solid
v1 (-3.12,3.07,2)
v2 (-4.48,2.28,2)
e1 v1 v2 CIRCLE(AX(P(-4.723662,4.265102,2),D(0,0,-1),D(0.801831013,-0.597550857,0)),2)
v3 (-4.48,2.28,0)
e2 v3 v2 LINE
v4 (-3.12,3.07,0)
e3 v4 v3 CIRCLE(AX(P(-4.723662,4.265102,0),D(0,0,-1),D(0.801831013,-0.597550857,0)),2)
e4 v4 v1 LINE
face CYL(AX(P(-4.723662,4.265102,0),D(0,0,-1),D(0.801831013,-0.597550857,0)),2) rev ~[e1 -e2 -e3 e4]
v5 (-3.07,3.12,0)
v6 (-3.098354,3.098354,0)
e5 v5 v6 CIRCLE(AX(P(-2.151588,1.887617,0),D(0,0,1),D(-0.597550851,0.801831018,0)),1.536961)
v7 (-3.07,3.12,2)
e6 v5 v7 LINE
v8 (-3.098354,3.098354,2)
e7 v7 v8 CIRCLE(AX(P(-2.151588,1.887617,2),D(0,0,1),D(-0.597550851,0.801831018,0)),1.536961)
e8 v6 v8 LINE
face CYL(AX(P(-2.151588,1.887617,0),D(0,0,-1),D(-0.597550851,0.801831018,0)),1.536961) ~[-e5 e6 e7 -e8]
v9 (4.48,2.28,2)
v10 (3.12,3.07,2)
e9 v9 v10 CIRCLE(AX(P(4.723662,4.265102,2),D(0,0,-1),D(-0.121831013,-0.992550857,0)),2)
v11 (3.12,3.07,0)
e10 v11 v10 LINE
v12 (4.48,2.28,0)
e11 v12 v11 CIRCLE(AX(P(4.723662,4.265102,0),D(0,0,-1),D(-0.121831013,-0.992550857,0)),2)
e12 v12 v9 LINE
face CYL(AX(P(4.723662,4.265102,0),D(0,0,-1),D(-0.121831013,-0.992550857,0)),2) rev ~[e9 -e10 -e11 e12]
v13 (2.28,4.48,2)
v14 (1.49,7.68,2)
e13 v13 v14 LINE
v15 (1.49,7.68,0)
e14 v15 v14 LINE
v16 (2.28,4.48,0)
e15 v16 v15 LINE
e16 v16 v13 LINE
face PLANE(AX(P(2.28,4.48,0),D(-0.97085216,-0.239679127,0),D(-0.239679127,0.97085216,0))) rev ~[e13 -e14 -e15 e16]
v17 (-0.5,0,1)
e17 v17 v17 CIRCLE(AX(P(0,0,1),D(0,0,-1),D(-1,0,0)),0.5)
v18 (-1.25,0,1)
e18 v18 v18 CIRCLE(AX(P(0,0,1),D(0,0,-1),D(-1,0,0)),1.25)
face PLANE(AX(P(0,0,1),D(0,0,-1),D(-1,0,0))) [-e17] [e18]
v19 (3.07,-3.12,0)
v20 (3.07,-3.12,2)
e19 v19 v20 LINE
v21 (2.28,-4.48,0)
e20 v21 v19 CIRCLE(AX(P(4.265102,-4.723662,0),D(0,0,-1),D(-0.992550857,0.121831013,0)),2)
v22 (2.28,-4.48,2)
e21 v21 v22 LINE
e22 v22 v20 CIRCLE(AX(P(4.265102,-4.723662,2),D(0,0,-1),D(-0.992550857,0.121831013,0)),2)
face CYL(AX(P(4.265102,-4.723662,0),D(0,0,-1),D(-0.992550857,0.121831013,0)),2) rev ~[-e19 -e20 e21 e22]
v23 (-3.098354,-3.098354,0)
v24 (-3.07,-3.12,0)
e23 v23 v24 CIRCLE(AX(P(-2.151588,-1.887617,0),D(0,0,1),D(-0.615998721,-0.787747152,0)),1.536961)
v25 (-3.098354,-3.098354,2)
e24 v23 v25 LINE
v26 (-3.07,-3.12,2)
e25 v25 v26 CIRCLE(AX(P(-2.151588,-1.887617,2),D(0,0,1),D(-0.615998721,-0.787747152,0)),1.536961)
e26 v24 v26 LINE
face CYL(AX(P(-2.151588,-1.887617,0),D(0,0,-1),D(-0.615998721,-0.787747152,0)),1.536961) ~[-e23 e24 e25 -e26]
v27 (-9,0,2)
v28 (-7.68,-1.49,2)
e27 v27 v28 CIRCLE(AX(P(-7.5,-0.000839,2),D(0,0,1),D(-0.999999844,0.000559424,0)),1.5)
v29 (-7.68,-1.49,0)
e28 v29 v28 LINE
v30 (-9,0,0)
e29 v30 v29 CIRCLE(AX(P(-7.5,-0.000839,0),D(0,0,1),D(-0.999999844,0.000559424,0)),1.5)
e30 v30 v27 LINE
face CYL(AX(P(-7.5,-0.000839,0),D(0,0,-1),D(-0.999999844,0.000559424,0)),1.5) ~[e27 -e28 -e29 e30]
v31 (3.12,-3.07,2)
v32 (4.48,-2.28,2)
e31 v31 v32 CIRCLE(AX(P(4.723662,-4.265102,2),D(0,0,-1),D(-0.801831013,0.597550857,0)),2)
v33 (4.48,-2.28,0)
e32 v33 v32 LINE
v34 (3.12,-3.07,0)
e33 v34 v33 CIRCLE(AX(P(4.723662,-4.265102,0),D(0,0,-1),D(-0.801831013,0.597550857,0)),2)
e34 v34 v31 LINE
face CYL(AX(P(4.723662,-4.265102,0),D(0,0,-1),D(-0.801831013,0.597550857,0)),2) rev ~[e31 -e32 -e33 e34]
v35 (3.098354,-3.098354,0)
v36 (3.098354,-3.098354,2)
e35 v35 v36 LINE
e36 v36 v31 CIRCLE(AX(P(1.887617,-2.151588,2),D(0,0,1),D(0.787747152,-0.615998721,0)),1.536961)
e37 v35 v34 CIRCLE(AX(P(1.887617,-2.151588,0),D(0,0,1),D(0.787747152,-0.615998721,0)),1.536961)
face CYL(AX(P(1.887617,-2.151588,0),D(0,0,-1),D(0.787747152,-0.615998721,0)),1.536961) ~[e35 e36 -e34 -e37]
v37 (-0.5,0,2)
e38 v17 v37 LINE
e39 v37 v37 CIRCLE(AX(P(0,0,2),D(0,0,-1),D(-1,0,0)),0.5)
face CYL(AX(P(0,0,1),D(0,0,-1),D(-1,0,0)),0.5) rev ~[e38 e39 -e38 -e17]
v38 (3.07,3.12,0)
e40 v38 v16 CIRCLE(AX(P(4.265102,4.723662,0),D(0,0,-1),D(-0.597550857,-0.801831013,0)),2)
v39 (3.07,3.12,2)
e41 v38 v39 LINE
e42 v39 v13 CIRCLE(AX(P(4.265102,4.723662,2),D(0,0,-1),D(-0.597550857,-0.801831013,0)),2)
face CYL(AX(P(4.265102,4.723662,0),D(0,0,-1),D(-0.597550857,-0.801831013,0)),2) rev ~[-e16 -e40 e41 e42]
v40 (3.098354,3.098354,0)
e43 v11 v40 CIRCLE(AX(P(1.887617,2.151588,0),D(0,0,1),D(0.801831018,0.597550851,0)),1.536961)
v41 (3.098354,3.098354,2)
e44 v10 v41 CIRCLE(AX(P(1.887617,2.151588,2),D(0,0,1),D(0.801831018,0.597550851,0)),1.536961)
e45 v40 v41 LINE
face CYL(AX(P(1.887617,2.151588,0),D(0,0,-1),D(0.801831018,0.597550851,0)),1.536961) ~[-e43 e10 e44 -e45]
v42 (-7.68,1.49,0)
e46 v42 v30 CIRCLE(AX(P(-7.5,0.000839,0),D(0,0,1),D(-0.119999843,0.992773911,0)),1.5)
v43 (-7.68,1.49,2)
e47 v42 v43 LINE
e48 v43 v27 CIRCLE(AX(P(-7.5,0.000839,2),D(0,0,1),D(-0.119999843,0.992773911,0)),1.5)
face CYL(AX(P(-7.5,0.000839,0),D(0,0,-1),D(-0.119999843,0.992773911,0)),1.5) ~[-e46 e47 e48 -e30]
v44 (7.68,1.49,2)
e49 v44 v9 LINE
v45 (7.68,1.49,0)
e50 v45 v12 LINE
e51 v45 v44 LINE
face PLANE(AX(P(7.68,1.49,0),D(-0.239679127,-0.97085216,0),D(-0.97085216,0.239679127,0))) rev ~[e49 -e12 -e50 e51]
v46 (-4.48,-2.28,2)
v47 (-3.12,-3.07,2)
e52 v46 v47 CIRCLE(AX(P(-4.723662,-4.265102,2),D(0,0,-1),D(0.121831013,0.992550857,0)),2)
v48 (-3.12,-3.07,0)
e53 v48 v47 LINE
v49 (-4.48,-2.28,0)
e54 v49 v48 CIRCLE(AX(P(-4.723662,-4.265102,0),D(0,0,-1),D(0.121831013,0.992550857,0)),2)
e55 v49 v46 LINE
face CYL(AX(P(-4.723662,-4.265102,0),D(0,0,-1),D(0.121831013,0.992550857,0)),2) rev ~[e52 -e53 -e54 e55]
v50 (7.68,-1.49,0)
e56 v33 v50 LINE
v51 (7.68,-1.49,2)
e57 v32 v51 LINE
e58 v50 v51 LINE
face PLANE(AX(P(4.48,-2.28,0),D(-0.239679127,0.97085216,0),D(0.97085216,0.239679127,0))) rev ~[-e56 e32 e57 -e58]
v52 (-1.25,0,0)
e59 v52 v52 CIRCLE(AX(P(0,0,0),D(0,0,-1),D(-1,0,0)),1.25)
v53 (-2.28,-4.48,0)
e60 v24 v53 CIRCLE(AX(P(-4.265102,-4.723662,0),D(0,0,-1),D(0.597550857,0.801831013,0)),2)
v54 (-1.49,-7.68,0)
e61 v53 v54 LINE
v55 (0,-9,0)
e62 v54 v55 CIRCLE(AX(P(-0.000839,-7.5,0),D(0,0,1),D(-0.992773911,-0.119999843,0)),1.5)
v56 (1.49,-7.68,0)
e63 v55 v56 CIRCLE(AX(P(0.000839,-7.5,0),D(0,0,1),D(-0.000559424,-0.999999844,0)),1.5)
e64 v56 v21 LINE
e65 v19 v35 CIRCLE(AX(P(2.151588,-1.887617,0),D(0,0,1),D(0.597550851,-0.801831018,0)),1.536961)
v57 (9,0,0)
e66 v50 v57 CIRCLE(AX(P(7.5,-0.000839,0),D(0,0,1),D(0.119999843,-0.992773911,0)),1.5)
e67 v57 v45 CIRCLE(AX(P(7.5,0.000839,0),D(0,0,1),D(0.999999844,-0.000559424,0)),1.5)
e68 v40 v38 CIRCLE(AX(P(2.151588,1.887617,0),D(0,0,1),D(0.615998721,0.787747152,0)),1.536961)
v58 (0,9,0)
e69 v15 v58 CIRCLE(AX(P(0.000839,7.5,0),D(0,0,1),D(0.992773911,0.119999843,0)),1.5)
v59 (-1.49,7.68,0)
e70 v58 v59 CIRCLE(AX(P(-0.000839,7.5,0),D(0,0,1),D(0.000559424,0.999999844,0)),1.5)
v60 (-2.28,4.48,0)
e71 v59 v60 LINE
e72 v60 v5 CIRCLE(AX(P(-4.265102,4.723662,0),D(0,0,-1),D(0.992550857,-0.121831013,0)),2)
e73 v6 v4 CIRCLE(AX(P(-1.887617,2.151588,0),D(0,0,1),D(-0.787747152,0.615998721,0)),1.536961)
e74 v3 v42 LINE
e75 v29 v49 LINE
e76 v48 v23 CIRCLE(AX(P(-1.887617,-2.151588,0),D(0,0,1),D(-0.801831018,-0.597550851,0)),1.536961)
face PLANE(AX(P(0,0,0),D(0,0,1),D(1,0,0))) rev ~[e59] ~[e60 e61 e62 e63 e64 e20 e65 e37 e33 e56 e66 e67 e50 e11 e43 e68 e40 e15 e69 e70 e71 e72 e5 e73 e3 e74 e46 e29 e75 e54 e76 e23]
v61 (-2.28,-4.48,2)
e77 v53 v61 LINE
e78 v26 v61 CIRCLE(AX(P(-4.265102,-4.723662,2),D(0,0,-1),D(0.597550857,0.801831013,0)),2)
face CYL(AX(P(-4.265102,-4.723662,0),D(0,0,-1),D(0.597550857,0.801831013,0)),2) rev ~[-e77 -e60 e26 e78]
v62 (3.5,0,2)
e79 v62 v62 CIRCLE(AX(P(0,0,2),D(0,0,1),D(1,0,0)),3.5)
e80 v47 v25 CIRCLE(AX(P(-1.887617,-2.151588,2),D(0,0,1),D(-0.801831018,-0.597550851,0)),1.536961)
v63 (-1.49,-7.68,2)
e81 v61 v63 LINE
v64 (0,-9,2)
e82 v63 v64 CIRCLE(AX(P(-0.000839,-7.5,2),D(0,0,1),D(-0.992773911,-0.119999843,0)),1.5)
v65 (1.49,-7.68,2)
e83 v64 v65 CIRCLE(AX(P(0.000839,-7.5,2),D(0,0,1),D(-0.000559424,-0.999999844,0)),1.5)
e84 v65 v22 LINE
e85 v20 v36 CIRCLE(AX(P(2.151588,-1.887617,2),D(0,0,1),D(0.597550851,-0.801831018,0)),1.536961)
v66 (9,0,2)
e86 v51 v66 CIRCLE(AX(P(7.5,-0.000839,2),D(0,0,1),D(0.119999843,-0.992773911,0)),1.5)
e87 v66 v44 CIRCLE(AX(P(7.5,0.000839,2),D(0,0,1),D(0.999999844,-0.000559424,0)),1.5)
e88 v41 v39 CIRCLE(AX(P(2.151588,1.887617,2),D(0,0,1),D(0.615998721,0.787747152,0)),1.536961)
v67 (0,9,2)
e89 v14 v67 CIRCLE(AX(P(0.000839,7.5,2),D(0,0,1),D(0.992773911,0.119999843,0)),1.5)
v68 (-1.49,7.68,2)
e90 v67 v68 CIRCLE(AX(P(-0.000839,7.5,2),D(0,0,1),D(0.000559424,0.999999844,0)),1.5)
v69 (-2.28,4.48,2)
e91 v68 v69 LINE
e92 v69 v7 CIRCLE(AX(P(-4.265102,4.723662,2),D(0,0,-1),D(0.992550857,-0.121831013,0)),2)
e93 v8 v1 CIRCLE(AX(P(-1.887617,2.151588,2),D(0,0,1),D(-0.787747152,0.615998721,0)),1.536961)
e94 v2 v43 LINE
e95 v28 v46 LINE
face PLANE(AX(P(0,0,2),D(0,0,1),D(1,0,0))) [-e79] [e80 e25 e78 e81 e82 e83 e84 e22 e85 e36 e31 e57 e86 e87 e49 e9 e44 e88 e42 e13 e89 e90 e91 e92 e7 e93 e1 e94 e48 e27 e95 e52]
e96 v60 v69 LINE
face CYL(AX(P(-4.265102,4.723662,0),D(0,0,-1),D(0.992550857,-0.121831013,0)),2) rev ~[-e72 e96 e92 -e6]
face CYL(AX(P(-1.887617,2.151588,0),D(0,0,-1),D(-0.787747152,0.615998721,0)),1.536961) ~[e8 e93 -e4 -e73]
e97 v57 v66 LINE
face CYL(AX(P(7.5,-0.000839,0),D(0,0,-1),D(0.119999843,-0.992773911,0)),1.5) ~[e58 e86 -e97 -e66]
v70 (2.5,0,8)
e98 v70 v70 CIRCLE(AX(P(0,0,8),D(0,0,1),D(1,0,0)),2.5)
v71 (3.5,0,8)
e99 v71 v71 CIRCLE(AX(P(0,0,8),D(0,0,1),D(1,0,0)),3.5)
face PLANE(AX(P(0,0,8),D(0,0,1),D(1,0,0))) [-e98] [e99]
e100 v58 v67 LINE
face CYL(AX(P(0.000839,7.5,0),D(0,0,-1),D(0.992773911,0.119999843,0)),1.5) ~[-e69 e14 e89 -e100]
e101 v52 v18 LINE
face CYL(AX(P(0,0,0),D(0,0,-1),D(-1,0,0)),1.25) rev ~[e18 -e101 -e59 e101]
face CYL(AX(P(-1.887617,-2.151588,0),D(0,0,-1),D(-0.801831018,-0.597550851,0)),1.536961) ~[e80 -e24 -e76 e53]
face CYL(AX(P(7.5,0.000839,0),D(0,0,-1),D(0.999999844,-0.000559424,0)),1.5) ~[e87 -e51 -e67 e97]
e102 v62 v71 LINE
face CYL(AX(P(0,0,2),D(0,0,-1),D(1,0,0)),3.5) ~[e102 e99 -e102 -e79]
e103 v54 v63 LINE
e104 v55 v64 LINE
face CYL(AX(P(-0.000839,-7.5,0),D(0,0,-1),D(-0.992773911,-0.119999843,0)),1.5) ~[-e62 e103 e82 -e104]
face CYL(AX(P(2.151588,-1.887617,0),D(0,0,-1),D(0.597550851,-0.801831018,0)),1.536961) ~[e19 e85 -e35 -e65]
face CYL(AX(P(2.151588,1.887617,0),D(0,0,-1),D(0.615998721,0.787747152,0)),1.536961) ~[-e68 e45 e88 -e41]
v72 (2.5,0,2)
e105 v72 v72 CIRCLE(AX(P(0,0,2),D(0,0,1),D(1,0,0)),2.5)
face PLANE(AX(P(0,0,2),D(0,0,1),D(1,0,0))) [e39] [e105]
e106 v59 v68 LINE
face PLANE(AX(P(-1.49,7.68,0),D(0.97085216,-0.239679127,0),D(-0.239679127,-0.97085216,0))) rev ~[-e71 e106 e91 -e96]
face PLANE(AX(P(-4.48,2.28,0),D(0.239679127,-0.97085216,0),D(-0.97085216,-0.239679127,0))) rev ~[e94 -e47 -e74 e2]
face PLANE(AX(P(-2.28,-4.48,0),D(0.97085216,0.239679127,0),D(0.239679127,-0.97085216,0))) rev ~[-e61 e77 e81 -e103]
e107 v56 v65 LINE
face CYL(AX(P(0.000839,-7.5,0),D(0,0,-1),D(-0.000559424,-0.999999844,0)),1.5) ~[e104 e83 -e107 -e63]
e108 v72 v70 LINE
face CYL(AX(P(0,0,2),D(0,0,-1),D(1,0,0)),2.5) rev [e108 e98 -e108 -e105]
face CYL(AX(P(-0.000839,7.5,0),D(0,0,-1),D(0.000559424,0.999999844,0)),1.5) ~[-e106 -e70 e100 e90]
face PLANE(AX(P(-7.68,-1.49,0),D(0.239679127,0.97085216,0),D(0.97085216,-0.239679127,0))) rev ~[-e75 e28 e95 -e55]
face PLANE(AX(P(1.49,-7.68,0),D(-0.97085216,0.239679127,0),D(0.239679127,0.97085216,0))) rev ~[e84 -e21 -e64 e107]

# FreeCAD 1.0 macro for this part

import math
import FreeCAD as App
import Part
import Sketcher

V = App.Vector
Q = App.Units.Quantity

doc = App.newDocument("Part")
body = doc.addObject("PartDesign::Body", "Body")

sketch1 = body.newObject("Sketcher::SketchObject", "Sketch")
sketch1.AttachmentSupport = (doc.getObject("XY_Plane"), [""])
sketch1.MapMode = "FlatFace"
sketch1.addGeometry([
    Part.LineSegment(V(1.49, -7.68, 0), V(2.28, -4.48, 0)),
    Part.ArcOfCircle(Part.Circle(V(4.265, -4.724, 0), V(0, 0, 1), 2), math.radians(127), math.radians(173)),
    Part.ArcOfCircle(Part.Circle(V(2.152, -1.888, 0), V(0, 0, 1), 1.537), math.radians(-53.31), math.radians(-51.98)),
    Part.ArcOfCircle(Part.Circle(V(1.888, -2.152, 0), V(0, 0, 1), 1.537), math.radians(-38.02), math.radians(-36.69)),
    Part.ArcOfCircle(Part.Circle(V(4.724, -4.265, 0), V(0, 0, 1), 2), math.radians(97), math.radians(143)),
    Part.LineSegment(V(4.48, -2.28, 0), V(7.68, -1.49, 0)),
    Part.ArcOfCircle(Part.Circle(V(7.5, -0.001, 0), V(0, 0, 1), 1.5), math.radians(-83), math.radians(0)),
    Part.ArcOfCircle(Part.Circle(V(7.5, 0.001, 0), V(0, 0, 1), 1.5), math.radians(0), math.radians(83)),
    Part.LineSegment(V(7.68, 1.49, 0), V(4.48, 2.28, 0)),
    Part.ArcOfCircle(Part.Circle(V(4.724, 4.265, 0), V(0, 0, 1), 2), math.radians(-143), math.radians(-97)),
    Part.ArcOfCircle(Part.Circle(V(1.888, 2.152, 0), V(0, 0, 1), 1.537), math.radians(36.69), math.radians(38.02)),
    Part.ArcOfCircle(Part.Circle(V(2.152, 1.888, 0), V(0, 0, 1), 1.537), math.radians(51.98), math.radians(53.31)),
    Part.ArcOfCircle(Part.Circle(V(4.265, 4.724, 0), V(0, 0, 1), 2), math.radians(-173), math.radians(-127)),
    Part.LineSegment(V(2.28, 4.48, 0), V(1.49, 7.68, 0)),
    Part.ArcOfCircle(Part.Circle(V(0.001, 7.5, 0), V(0, 0, 1), 1.5), math.radians(7), math.radians(90)),
    Part.ArcOfCircle(Part.Circle(V(-0.001, 7.5, 0), V(0, 0, 1), 1.5), math.radians(90), math.radians(173)),
    Part.LineSegment(V(-1.49, 7.68, 0), V(-2.28, 4.48, 0)),
    Part.ArcOfCircle(Part.Circle(V(-4.265, 4.724, 0), V(0, 0, 1), 2), math.radians(-53), math.radians(-7)),
    Part.ArcOfCircle(Part.Circle(V(-2.152, 1.888, 0), V(0, 0, 1), 1.537), math.radians(126.69), math.radians(128.02)),
    Part.ArcOfCircle(Part.Circle(V(-1.888, 2.152, 0), V(0, 0, 1), 1.537), math.radians(141.98), math.radians(143.31)),
    Part.ArcOfCircle(Part.Circle(V(-4.724, 4.265, 0), V(0, 0, 1), 2), math.radians(-83), math.radians(-37)),
    Part.LineSegment(V(-4.48, 2.28, 0), V(-7.68, 1.49, 0)),
    Part.ArcOfCircle(Part.Circle(V(-7.5, 0.001, 0), V(0, 0, 1), 1.5), math.radians(97), math.radians(180)),
    Part.ArcOfCircle(Part.Circle(V(-7.5, -0.001, 0), V(0, 0, 1), 1.5), math.radians(180), math.radians(263)),
    Part.LineSegment(V(-7.68, -1.49, 0), V(-4.48, -2.28, 0)),
    Part.ArcOfCircle(Part.Circle(V(-4.724, -4.265, 0), V(0, 0, 1), 2), math.radians(37), math.radians(83)),
    Part.ArcOfCircle(Part.Circle(V(-1.888, -2.152, 0), V(0, 0, 1), 1.537), math.radians(-143.31), math.radians(-141.98)),
    Part.ArcOfCircle(Part.Circle(V(-2.152, -1.888, 0), V(0, 0, 1), 1.537), math.radians(-128.02), math.radians(-126.69)),
    Part.ArcOfCircle(Part.Circle(V(-4.265, -4.724, 0), V(0, 0, 1), 2), math.radians(7), math.radians(53)),
    Part.LineSegment(V(-2.28, -4.48, 0), V(-1.49, -7.68, 0)),
    Part.ArcOfCircle(Part.Circle(V(-0.001, -7.5, 0), V(0, 0, 1), 1.5), math.radians(-173), math.radians(-90)),
    Part.ArcOfCircle(Part.Circle(V(0.001, -7.5, 0), V(0, 0, 1), 1.5), math.radians(-90), math.radians(-7)),
], False)
sketch1.addConstraint([
    Sketcher.Constraint("Coincident", 0, 2, 1, 2),
    Sketcher.Constraint("Tangent", 1, 1, 2, 1),
    Sketcher.Constraint("Coincident", 2, 2, 3, 1),
    Sketcher.Constraint("Tangent", 3, 2, 4, 2),
    Sketcher.Constraint("Coincident", 4, 1, 5, 1),
    Sketcher.Constraint("Coincident", 5, 2, 6, 1),
    Sketcher.Constraint("Coincident", 6, 2, 7, 1),
    Sketcher.Constraint("Coincident", 7, 2, 8, 1),
    Sketcher.Constraint("Coincident", 8, 2, 9, 2),
    Sketcher.Constraint("Tangent", 9, 1, 10, 1),
    Sketcher.Constraint("Coincident", 10, 2, 11, 1),
    Sketcher.Constraint("Tangent", 11, 2, 12, 2),
    Sketcher.Constraint("Coincident", 12, 1, 13, 1),
    Sketcher.Constraint("Coincident", 13, 2, 14, 1),
    Sketcher.Constraint("Coincident", 14, 2, 15, 1),
    Sketcher.Constraint("Coincident", 15, 2, 16, 1),
    Sketcher.Constraint("Coincident", 16, 2, 17, 2),
    Sketcher.Constraint("Tangent", 17, 1, 18, 1),
    Sketcher.Constraint("Coincident", 18, 2, 19, 1),
    Sketcher.Constraint("Tangent", 19, 2, 20, 2),
    Sketcher.Constraint("Coincident", 20, 1, 21, 1),
    Sketcher.Constraint("Coincident", 21, 2, 22, 1),
    Sketcher.Constraint("Coincident", 22, 2, 23, 1),
    Sketcher.Constraint("Coincident", 23, 2, 24, 1),
    Sketcher.Constraint("Coincident", 24, 2, 25, 2),
    Sketcher.Constraint("Tangent", 25, 1, 26, 1),
    Sketcher.Constraint("Coincident", 26, 2, 27, 1),
    Sketcher.Constraint("Tangent", 27, 2, 28, 2),
    Sketcher.Constraint("Coincident", 28, 1, 29, 1),
    Sketcher.Constraint("Coincident", 29, 2, 30, 1),
    Sketcher.Constraint("Coincident", 30, 2, 31, 1),
    Sketcher.Constraint("Coincident", 31, 2, 0, 1),
    Sketcher.Constraint("Equal", 2, 3),
    Sketcher.Constraint("Equal", 1, 4),
    Sketcher.Constraint("Equal", 6, 7),
    Sketcher.Constraint("Equal", 4, 9),
    Sketcher.Constraint("Equal", 3, 10),
    Sketcher.Constraint("Equal", 10, 11),
    Sketcher.Constraint("Equal", 9, 12),
    Sketcher.Constraint("Equal", 7, 14),
    Sketcher.Constraint("Equal", 14, 15),
    Sketcher.Constraint("Equal", 12, 17),
    Sketcher.Constraint("Equal", 11, 18),
    Sketcher.Constraint("Equal", 18, 19),
    Sketcher.Constraint("Equal", 17, 20),
    Sketcher.Constraint("Equal", 15, 22),
    Sketcher.Constraint("Equal", 22, 23),
    Sketcher.Constraint("Equal", 20, 25),
    Sketcher.Constraint("Equal", 19, 26),
    Sketcher.Constraint("Equal", 26, 27),
    Sketcher.Constraint("Equal", 25, 28),
    Sketcher.Constraint("Equal", 23, 30),
    Sketcher.Constraint("Equal", 30, 31),
    Sketcher.Constraint("Symmetric", 1, 3, 17, 3, -1, 1),
    Sketcher.Constraint("Symmetric", 3, 3, 19, 3, -1, 1),
    Sketcher.Constraint("Symmetric", 6, 3, 22, 3, -1, 1),
    Sketcher.Constraint("Symmetric", 9, 3, 25, 3, -1, 1),
    Sketcher.Constraint("Symmetric", 11, 3, 27, 3, -1, 1),
    Sketcher.Constraint("Symmetric", 14, 3, 30, 3, -1, 1),
    Sketcher.Constraint("Symmetric", 4, 1, 20, 1, -1, 1),
    Sketcher.Constraint("Symmetric", 7, 2, 23, 2, -1, 1),
    Sketcher.Constraint("Symmetric", 12, 1, 28, 1, -1, 1),
    Sketcher.Constraint("Symmetric", 15, 2, 31, 2, -1, 1),
    Sketcher.Constraint("Symmetric", 12, 3, 17, 3, -2),
    Sketcher.Constraint("Symmetric", 10, 3, 19, 3, -2),
    Sketcher.Constraint("Symmetric", 13, 2, 15, 2, -2),
    Sketcher.Constraint("Symmetric", 8, 2, 20, 1, -2),
    Sketcher.Constraint("Symmetric", 7, 2, 21, 2, -2),
    Sketcher.Constraint("Symmetric", 2, 2, 26, 2, -2),
    Sketcher.Constraint("PointOnObject", 6, 2, -1),
    Sketcher.Constraint("PointOnObject", 14, 2, -2),
    Sketcher.Constraint("PointOnObject", 22, 2, -1),
    Sketcher.Constraint("PointOnObject", 30, 2, -2),
    Sketcher.Constraint("Perpendicular", 0, 8),
    Sketcher.Constraint("Perpendicular", 5, 13),
    Sketcher.Constraint("Perpendicular", 8, 16),
    Sketcher.Constraint("Perpendicular", 13, 21),
    Sketcher.Constraint("Perpendicular", 16, 24),
    Sketcher.Constraint("Perpendicular", 21, 29),
    Sketcher.Constraint("Horizontal", 11, 3, 18, 3),
    Sketcher.Constraint("Equal", 0, 5),
    Sketcher.Constraint("Radius", 1, Q("2 mm")),
    Sketcher.Constraint("Radius", 6, Q("1.5 mm")),
    Sketcher.Constraint("DistanceX", -1, 1, 6, 2, Q("9 mm")),
    Sketcher.Constraint("DistanceY", -1, 1, 14, 2, Q("9 mm")),
    Sketcher.Constraint("DistanceX", 4, 1, 5, 2, Q("3.2 mm")),
    Sketcher.Constraint("DistanceX", -1, 1, 0, 2, Q("2.28 mm")),
    Sketcher.Constraint("DistanceY", 0, 2, -1, 1, Q("4.48 mm")),
    Sketcher.Constraint("DistanceX", -1, 1, 1, 1, Q("3.07 mm")),
    Sketcher.Constraint("DistanceY", 1, 1, -1, 1, Q("3.12 mm")),
    Sketcher.Constraint("DistanceX", -1, 1, 3, 2, Q("3.12 mm")),
    Sketcher.Constraint("DistanceY", 3, 2, -1, 1, Q("3.07 mm")),
    Sketcher.Constraint("DistanceX", -1, 1, 4, 1, Q("4.48 mm")),
    Sketcher.Constraint("DistanceY", 4, 1, -1, 1, Q("2.28 mm")),
    Sketcher.Constraint("DistanceY", 5, 2, -1, 1, Q("1.49 mm")),
    Sketcher.Constraint("Radius", 2, Q("1.536961 mm")),
])
pad1 = body.newObject("PartDesign::Pad", "Pad")
pad1.Profile = sketch1
pad1.Length = 2

sketch2 = body.newObject("Sketcher::SketchObject", "Sketch001")
sketch2.AttachmentSupport = (doc.getObject("XY_Plane"), [""])
sketch2.MapMode = "FlatFace"
sketch2.AttachmentOffset = App.Placement(V(0, 0, 2), App.Rotation())
sketch2.addGeometry([
    Part.Circle(V(0, 0, 0), V(0, 0, 1), 3.5),
    Part.Circle(V(0, 0, 0), V(0, 0, 1), 2.5),
], False)
sketch2.addConstraint([
    Sketcher.Constraint("Coincident", 0, 3, -1, 1),
    Sketcher.Constraint("Coincident", 1, 3, -1, 1),
    Sketcher.Constraint("Diameter", 0, Q("7 mm")),
    Sketcher.Constraint("Diameter", 1, Q("5 mm")),
])
pad2 = body.newObject("PartDesign::Pad", "Pad001")
pad2.Profile = sketch2
pad2.Length = 6

sketch3 = body.newObject("Sketcher::SketchObject", "Sketch002")
sketch3.AttachmentSupport = (doc.getObject("XY_Plane"), [""])
sketch3.MapMode = "FlatFace"
sketch3.addGeometry(Part.Circle(V(0, 0, 0), V(0, 0, 1), 1.2), False)
sketch3.addConstraint([
    Sketcher.Constraint("Coincident", 0, 3, -1, 1),
    Sketcher.Constraint("Diameter", 0, Q("2.5 mm")),
])
pocket1 = body.newObject("PartDesign::Pocket", "Pocket")
pocket1.Profile = sketch3
pocket1.Length = 1
pocket1.Reversed = True

sketch4 = body.newObject("Sketcher::SketchObject", "Sketch003")
sketch4.AttachmentSupport = (doc.getObject("XY_Plane"), [""])
sketch4.MapMode = "FlatFace"
sketch4.AttachmentOffset = App.Placement(V(0, 0, 1), App.Rotation())
sketch4.addGeometry(Part.Circle(V(0, 0, 0), V(0, 0, 1), 0.5), False)
sketch4.addConstraint([
    Sketcher.Constraint("Coincident", 0, 3, -1, 1),
    Sketcher.Constraint("Diameter", 0, Q("1 mm")),
])
pocket2 = body.newObject("PartDesign::Pocket", "Pocket001")
pocket2.Profile = sketch4
pocket2.Type = "ThroughAll"
pocket2.Reversed = True

doc.recompute()
